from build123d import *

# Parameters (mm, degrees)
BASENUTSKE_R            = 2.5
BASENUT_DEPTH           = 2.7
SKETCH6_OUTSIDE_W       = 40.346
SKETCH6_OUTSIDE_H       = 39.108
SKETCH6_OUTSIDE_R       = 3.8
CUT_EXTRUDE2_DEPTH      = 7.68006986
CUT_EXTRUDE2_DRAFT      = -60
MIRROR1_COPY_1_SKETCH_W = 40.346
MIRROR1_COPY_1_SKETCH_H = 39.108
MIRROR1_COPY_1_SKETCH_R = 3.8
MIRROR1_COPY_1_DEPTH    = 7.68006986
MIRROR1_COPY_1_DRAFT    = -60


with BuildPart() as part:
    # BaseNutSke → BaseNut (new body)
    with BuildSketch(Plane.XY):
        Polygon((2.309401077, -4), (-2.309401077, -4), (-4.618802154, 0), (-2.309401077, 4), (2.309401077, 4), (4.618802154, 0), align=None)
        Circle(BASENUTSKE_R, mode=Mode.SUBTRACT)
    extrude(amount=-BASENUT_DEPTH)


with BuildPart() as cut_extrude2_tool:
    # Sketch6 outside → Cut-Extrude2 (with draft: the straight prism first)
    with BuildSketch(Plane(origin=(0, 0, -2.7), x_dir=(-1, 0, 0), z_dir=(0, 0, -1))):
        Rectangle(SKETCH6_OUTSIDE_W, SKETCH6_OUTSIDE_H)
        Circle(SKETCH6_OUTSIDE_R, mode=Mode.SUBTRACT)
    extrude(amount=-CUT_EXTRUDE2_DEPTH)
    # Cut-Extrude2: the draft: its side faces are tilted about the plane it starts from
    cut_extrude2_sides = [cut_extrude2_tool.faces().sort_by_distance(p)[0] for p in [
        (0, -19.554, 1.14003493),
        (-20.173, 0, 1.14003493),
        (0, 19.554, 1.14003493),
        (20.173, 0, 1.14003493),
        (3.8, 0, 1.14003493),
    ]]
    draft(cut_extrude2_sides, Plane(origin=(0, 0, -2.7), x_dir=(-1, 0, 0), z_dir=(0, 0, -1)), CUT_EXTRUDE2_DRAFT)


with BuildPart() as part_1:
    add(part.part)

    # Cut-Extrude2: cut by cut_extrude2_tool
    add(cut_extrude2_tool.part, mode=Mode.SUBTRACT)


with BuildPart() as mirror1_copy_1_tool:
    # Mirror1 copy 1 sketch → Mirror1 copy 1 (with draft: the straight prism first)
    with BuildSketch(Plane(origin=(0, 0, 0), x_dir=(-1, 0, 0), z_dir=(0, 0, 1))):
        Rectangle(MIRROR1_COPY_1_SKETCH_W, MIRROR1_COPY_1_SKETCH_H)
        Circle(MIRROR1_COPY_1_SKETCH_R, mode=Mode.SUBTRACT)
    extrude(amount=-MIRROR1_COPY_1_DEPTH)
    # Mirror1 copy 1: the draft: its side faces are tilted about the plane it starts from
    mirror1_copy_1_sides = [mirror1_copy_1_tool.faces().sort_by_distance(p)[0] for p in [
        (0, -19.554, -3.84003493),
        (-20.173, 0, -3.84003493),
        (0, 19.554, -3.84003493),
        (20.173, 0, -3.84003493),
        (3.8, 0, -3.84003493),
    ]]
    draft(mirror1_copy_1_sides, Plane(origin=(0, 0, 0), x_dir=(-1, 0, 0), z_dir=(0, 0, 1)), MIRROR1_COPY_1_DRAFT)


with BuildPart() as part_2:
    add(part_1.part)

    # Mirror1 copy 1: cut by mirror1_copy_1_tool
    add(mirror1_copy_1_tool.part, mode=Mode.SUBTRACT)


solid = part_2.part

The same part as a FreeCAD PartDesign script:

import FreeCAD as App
import Part
import Sketcher
from FreeCAD import Vector
Q = App.Units.Quantity


def faces_at(feature, points):
    """Names of the faces that lie closest to the given points."""
    faces = feature.Shape.Faces
    near = lambda p: min(range(len(faces)), key=lambda i: faces[i].distToShape(Part.Vertex(*p))[0])
    return sorted({f"Face{near(p) + 1}" for p in points})

doc = App.newDocument("Part")
body = doc.addObject("PartDesign::Body", "Body")

# Sketch on XY plane
sketch1 = body.newObject("Sketcher::SketchObject", "Sketch")
sketch1.AttachmentSupport = (doc.getObject("XY_Plane"), [""])
sketch1.MapMode = "FlatFace"
sketch1.addGeometry(Part.LineSegment(Vector(-2.309401, -4, 0), Vector(2.309401, -4, 0)), False)
sketch1.addGeometry(Part.LineSegment(Vector(2.309401, -4, 0), Vector(4.618802, 0, 0)), False)
sketch1.addGeometry(Part.LineSegment(Vector(4.618802, 0, 0), Vector(2.309401, 4, 0)), False)
sketch1.addGeometry(Part.LineSegment(Vector(2.309401, 4, 0), Vector(-2.309401, 4, 0)), False)
sketch1.addGeometry(Part.LineSegment(Vector(-2.309401, 4, 0), Vector(-4.618802, 0, 0)), False)
sketch1.addGeometry(Part.LineSegment(Vector(-4.618802, 0, 0), Vector(-2.309401, -4, 0)), False)
sketch1.addGeometry(Part.Circle(Vector(0, 0, 0), Vector(0, 0, 1), 2.5), False)
sketch1.addConstraint(Sketcher.Constraint("Coincident", 0, 2, 1, 1))
sketch1.addConstraint(Sketcher.Constraint("Coincident", 1, 2, 2, 1))
sketch1.addConstraint(Sketcher.Constraint("Coincident", 2, 2, 3, 1))
sketch1.addConstraint(Sketcher.Constraint("Coincident", 3, 2, 4, 1))
sketch1.addConstraint(Sketcher.Constraint("Coincident", 4, 2, 5, 1))
sketch1.addConstraint(Sketcher.Constraint("Coincident", 5, 2, 0, 1))
sketch1.addConstraint(Sketcher.Constraint("Horizontal", 0))
sketch1.addConstraint(Sketcher.Constraint("Horizontal", 3))
sketch1.addConstraint(Sketcher.Constraint("Coincident", 6, 3, -1, 1))
sketch1.addConstraint(Sketcher.Constraint("Symmetric", 0, 2, 3, 2, -1, 1))
sketch1.addConstraint(Sketcher.Constraint("Symmetric", 1, 2, 4, 2, -1, 1))
sketch1.addConstraint(Sketcher.Constraint("PointOnObject", 1, 2, -1))
sketch1.addConstraint(Sketcher.Constraint("Parallel", 2, 5))
sketch1.addConstraint(Sketcher.Constraint("Vertical", 0, 2, 2, 2))
sketch1.addConstraint(Sketcher.Constraint("Diameter", 6, 5.0))
sketch1.addConstraint(Sketcher.Constraint("Angle", 1, Q("60 deg")))
sketch1.addConstraint(Sketcher.Constraint("DistanceY", 0, 2, -1, 1, 4.0))
sketch1.addConstraint(Sketcher.Constraint("DistanceX", -1, 1, 0, 2, 2.309401))
pad1 = body.newObject("PartDesign::Pad", "Pad")
pad1.Profile = sketch1
pad1.Length = 2.7
pad1.Reversed = True
body2 = doc.addObject("PartDesign::Body", "Body001")

# Sketch on XY plane
sketch2 = body2.newObject("Sketcher::SketchObject", "Sketch001")
sketch2.AttachmentSupport = (doc.getObject("XY_Plane001"), [""])
sketch2.MapMode = "FlatFace"
sketch2.AttachmentOffset = App.Placement(Vector(0, 0, -2.7), App.Rotation())
sketch2.addGeometry(Part.LineSegment(Vector(20.173, 19.554, 0), Vector(20.173, -19.554, 0)), False)
sketch2.addGeometry(Part.LineSegment(Vector(20.173, -19.554, 0), Vector(-20.173, -19.554, 0)), False)
sketch2.addGeometry(Part.LineSegment(Vector(-20.173, -19.554, 0), Vector(-20.173, 19.554, 0)), False)
sketch2.addGeometry(Part.LineSegment(Vector(-20.173, 19.554, 0), Vector(20.173, 19.554, 0)), False)
sketch2.addGeometry(Part.Circle(Vector(0, 0, 0), Vector(0, 0, 1), 3.8), False)
sketch2.addConstraint(Sketcher.Constraint("Coincident", 0, 2, 1, 1))
sketch2.addConstraint(Sketcher.Constraint("Coincident", 1, 2, 2, 1))
sketch2.addConstraint(Sketcher.Constraint("Coincident", 2, 2, 3, 1))
sketch2.addConstraint(Sketcher.Constraint("Coincident", 3, 2, 0, 1))
sketch2.addConstraint(Sketcher.Constraint("Vertical", 0))
sketch2.addConstraint(Sketcher.Constraint("Horizontal", 1))
sketch2.addConstraint(Sketcher.Constraint("Vertical", 2))
sketch2.addConstraint(Sketcher.Constraint("Horizontal", 3))
sketch2.addConstraint(Sketcher.Constraint("Coincident", 4, 3, -1, 1))
sketch2.addConstraint(Sketcher.Constraint("Symmetric", 0, 2, 2, 2, -1, 1))
sketch2.addConstraint(Sketcher.Constraint("Diameter", 4, 7.6))
sketch2.addConstraint(Sketcher.Constraint("DistanceX", 1, 2, 1, 1, 40.346))
sketch2.addConstraint(Sketcher.Constraint("DistanceY", 0, 2, 0, 1, 39.108))
pad2 = body2.newObject("PartDesign::Pad", "Pad001")
pad2.Profile = sketch2
pad2.Length = 7.68007
doc.recompute()

datumplane = body2.newObject("PartDesign::Plane", "DatumPlane")
datumplane.AttachmentSupport = (doc.getObject("XY_Plane001"), [""])
datumplane.MapMode = "FlatFace"
datumplane.AttachmentOffset = App.Placement(Vector(0, 0, -2.7), App.Rotation())
draft = body2.newObject("PartDesign::Draft", "Draft")
draft.Base = (pad2, faces_at(pad2, [
    (0, -19.554, 1.14),
    (-20.173, 0, 1.14),
    (0, 19.554, 1.14),
    (20.173, 0, 1.14),
    (3.8, 0, 1.14),
]))
draft.NeutralPlane = (datumplane, [""])
draft.Angle = 60
draft.Reversed = False
doc.recompute()

boolean = body.newObject("PartDesign::Boolean", "Boolean")
boolean.Type = "Cut"
boolean.addObjects([body2])
body3 = doc.addObject("PartDesign::Body", "Body002")

# Sketch on XY plane
sketch3 = body3.newObject("Sketcher::SketchObject", "Sketch002")
sketch3.AttachmentSupport = (doc.getObject("XY_Plane002"), [""])
sketch3.MapMode = "FlatFace"
sketch3.addGeometry(Part.LineSegment(Vector(20.173, -19.554, 0), Vector(20.173, 19.554, 0)), False)
sketch3.addGeometry(Part.LineSegment(Vector(20.173, 19.554, 0), Vector(-20.173, 19.554, 0)), False)
sketch3.addGeometry(Part.LineSegment(Vector(-20.173, 19.554, 0), Vector(-20.173, -19.554, 0)), False)
sketch3.addGeometry(Part.LineSegment(Vector(-20.173, -19.554, 0), Vector(20.173, -19.554, 0)), False)
sketch3.addGeometry(Part.Circle(Vector(0, 0, 0), Vector(0, 0, 1), 3.8), False)
sketch3.addConstraint(Sketcher.Constraint("Coincident", 0, 2, 1, 1))
sketch3.addConstraint(Sketcher.Constraint("Coincident", 1, 2, 2, 1))
sketch3.addConstraint(Sketcher.Constraint("Coincident", 2, 2, 3, 1))
sketch3.addConstraint(Sketcher.Constraint("Coincident", 3, 2, 0, 1))
sketch3.addConstraint(Sketcher.Constraint("Vertical", 0))
sketch3.addConstraint(Sketcher.Constraint("Horizontal", 1))
sketch3.addConstraint(Sketcher.Constraint("Vertical", 2))
sketch3.addConstraint(Sketcher.Constraint("Horizontal", 3))
sketch3.addConstraint(Sketcher.Constraint("Coincident", 4, 3, -1, 1))
sketch3.addConstraint(Sketcher.Constraint("Symmetric", 0, 2, 2, 2, -1, 1))
sketch3.addConstraint(Sketcher.Constraint("Diameter", 4, 7.6))
sketch3.addConstraint(Sketcher.Constraint("DistanceX", 1, 2, 1, 1, 40.346))
sketch3.addConstraint(Sketcher.Constraint("DistanceY", 0, 1, 0, 2, 39.108))
pad3 = body3.newObject("PartDesign::Pad", "Pad002")
pad3.Profile = sketch3
pad3.Length = 7.68007
pad3.Reversed = True
doc.recompute()

draft2 = body3.newObject("PartDesign::Draft", "Draft001")
draft2.Base = (pad3, faces_at(pad3, [
    (0, -19.554, -3.84),
    (-20.173, 0, -3.84),
    (0, 19.554, -3.84),
    (20.173, 0, -3.84),
    (3.8, 0, -3.84),
]))
draft2.NeutralPlane = (doc.getObject("XY_Plane002"), [""])
draft2.Angle = 60
draft2.Reversed = True
doc.recompute()

boolean2 = body.newObject("PartDesign::Boolean", "Boolean001")
boolean2.Type = "Cut"
boolean2.addObjects([body3])

doc.recompute()
